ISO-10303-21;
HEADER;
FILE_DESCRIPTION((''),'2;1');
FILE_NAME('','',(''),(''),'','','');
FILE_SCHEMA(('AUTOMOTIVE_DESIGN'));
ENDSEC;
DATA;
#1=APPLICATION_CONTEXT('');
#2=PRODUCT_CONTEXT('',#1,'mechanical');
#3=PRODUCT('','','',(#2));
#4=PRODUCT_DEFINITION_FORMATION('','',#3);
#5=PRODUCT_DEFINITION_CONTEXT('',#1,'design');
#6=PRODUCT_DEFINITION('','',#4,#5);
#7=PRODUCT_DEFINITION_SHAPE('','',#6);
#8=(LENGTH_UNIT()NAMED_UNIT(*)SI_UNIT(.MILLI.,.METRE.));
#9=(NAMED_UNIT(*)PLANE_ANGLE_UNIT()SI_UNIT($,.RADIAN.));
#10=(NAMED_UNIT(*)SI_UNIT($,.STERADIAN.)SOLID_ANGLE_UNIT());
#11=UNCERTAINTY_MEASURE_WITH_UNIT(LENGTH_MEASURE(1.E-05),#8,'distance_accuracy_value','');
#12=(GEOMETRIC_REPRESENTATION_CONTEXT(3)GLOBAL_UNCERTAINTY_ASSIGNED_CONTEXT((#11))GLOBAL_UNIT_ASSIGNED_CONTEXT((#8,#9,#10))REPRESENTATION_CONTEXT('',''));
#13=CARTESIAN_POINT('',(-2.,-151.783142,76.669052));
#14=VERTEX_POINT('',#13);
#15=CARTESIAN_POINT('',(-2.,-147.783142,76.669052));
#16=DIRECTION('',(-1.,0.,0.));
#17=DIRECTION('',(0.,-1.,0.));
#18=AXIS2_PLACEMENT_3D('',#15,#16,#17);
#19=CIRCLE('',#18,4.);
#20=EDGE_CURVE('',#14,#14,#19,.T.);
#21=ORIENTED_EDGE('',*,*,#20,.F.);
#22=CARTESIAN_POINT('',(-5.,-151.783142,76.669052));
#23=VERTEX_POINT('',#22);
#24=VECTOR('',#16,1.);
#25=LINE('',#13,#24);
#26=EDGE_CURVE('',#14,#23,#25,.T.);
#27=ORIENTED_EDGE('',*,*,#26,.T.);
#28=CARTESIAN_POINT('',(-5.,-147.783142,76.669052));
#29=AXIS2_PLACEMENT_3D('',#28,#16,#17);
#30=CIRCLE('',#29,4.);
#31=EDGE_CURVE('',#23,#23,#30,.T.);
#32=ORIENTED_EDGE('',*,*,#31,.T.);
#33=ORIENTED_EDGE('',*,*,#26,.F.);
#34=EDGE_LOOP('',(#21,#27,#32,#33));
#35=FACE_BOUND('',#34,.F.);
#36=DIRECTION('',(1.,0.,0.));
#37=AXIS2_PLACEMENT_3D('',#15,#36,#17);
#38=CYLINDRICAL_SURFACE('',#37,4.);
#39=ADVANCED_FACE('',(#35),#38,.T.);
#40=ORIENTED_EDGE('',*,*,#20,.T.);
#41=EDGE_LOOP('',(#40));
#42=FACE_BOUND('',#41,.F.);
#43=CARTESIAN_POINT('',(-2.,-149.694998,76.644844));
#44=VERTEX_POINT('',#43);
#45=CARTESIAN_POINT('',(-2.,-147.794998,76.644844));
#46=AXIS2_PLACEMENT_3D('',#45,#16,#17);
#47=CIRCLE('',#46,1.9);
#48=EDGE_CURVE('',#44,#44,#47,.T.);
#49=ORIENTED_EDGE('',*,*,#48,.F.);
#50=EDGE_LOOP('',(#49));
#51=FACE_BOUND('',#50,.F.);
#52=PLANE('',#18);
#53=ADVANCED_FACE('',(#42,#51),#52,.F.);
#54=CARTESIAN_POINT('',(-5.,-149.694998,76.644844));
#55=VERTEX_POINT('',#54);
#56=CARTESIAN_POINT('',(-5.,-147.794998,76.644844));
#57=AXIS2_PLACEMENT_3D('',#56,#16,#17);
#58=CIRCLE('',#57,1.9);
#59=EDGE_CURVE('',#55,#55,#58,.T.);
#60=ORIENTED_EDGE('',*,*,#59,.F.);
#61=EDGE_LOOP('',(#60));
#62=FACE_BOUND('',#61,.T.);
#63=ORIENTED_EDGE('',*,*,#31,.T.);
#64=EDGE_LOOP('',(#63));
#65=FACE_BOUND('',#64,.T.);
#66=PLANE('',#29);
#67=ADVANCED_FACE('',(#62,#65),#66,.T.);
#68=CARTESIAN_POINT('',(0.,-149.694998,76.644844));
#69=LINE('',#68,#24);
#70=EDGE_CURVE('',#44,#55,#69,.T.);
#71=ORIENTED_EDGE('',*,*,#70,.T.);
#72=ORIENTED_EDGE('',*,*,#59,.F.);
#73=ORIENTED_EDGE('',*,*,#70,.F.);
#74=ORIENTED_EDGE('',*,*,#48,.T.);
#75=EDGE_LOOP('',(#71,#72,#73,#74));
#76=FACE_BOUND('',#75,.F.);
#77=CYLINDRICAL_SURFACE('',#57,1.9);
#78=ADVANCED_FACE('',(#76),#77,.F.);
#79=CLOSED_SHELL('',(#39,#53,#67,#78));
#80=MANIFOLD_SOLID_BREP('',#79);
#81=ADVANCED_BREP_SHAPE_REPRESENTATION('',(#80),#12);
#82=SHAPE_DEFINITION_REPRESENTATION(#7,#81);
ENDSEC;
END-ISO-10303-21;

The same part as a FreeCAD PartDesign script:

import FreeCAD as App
import Part
import Sketcher

doc = App.newDocument("Part")
body = doc.addObject("PartDesign::Body", "Body")

sketch1 = body.newObject("Sketcher::SketchObject", "Sketch")
sketch1.AttachmentSupport = (doc.getObject("YZ_Plane"), [""])
sketch1.MapMode = "FlatFace"
sketch1.AttachmentOffset = App.Placement(App.Vector(0, 0, -5), App.Rotation())
sketch1.addGeometry(Part.Circle(App.Vector(-147.8, 76.6, 0), App.Vector(0, 0, 1), 1.9), False)
sketch1.addConstraint([
    Sketcher.Constraint("Diameter", 0, 3.8),
    Sketcher.Constraint("DistanceX", 0, 3, -1, 1, 147.794998),
    Sketcher.Constraint("DistanceY", -1, 1, 0, 3, 76.644844),
])
pad1 = body.newObject("PartDesign::Pad", "Pad")
pad1.Profile = sketch1
pad1.Length = 10
pad1.Midplane = True
body2 = doc.addObject("PartDesign::Body", "Body001")

sketch2 = body2.newObject("Sketcher::SketchObject", "Sketch001")
sketch2.AttachmentSupport = (doc.getObject("YZ_Plane001"), [""])
sketch2.MapMode = "FlatFace"
sketch2.AttachmentOffset = App.Placement(App.Vector(0, 0, -1.5), App.Rotation())
sketch2.addGeometry(Part.Circle(App.Vector(-54.8, 76.7, 0), App.Vector(0, 0, 1), 1.9), False)
sketch2.addConstraint([
    Sketcher.Constraint("Diameter", 0, 3.7),
    Sketcher.Constraint("DistanceY", -1, 1, 0, 3, 76.655029),
    Sketcher.Constraint("DistanceX", 0, 3, -1, 1, 54.826782),
])
pad2 = body2.newObject("PartDesign::Pad", "Pad001")
pad2.Profile = sketch2
pad2.Length = 15
pad2.Reversed = True
body3 = doc.addObject("PartDesign::Body", "Body002")
doc.recompute()

body2.Placement = App.Placement(App.Vector(12.3, -93, 0), App.Rotation(App.Vector(0, 0, 1), 0))
boolean = body3.newObject("PartDesign::Boolean", "Boolean")
boolean.Type = "Fuse"
boolean.addObjects([body2])
body4 = doc.addObject("PartDesign::Body", "Body003")

sketch3 = body4.newObject("Sketcher::SketchObject", "Sketch002")
sketch3.AttachmentSupport = (doc.getObject("YZ_Plane003"), [""])
sketch3.MapMode = "FlatFace"
sketch3.AttachmentOffset = App.Placement(App.Vector(0, 0, -2), App.Rotation())
sketch3.addGeometry(Part.Circle(App.Vector(-147.8, 76.7, 0), App.Vector(0, 0, 1), 4), False)
sketch3.addConstraint([
    Sketcher.Constraint("Diameter", 0, 8.0),
    Sketcher.Constraint("DistanceX", 0, 3, -1, 1, 147.783142),
    Sketcher.Constraint("DistanceY", -1, 1, 0, 3, 76.669052),
])
pad3 = body4.newObject("PartDesign::Pad", "Pad002")
pad3.Profile = sketch3
pad3.Length = 3
pad3.Reversed = True
doc.recompute()

boolean2 = body4.newObject("PartDesign::Boolean", "Boolean001")
boolean2.Type = "Cut"
boolean2.addObjects([body3])
doc.recompute()

boolean3 = body4.newObject("PartDesign::Boolean", "Boolean002")
boolean3.Type = "Cut"
boolean3.addObjects([body])

doc.recompute()
